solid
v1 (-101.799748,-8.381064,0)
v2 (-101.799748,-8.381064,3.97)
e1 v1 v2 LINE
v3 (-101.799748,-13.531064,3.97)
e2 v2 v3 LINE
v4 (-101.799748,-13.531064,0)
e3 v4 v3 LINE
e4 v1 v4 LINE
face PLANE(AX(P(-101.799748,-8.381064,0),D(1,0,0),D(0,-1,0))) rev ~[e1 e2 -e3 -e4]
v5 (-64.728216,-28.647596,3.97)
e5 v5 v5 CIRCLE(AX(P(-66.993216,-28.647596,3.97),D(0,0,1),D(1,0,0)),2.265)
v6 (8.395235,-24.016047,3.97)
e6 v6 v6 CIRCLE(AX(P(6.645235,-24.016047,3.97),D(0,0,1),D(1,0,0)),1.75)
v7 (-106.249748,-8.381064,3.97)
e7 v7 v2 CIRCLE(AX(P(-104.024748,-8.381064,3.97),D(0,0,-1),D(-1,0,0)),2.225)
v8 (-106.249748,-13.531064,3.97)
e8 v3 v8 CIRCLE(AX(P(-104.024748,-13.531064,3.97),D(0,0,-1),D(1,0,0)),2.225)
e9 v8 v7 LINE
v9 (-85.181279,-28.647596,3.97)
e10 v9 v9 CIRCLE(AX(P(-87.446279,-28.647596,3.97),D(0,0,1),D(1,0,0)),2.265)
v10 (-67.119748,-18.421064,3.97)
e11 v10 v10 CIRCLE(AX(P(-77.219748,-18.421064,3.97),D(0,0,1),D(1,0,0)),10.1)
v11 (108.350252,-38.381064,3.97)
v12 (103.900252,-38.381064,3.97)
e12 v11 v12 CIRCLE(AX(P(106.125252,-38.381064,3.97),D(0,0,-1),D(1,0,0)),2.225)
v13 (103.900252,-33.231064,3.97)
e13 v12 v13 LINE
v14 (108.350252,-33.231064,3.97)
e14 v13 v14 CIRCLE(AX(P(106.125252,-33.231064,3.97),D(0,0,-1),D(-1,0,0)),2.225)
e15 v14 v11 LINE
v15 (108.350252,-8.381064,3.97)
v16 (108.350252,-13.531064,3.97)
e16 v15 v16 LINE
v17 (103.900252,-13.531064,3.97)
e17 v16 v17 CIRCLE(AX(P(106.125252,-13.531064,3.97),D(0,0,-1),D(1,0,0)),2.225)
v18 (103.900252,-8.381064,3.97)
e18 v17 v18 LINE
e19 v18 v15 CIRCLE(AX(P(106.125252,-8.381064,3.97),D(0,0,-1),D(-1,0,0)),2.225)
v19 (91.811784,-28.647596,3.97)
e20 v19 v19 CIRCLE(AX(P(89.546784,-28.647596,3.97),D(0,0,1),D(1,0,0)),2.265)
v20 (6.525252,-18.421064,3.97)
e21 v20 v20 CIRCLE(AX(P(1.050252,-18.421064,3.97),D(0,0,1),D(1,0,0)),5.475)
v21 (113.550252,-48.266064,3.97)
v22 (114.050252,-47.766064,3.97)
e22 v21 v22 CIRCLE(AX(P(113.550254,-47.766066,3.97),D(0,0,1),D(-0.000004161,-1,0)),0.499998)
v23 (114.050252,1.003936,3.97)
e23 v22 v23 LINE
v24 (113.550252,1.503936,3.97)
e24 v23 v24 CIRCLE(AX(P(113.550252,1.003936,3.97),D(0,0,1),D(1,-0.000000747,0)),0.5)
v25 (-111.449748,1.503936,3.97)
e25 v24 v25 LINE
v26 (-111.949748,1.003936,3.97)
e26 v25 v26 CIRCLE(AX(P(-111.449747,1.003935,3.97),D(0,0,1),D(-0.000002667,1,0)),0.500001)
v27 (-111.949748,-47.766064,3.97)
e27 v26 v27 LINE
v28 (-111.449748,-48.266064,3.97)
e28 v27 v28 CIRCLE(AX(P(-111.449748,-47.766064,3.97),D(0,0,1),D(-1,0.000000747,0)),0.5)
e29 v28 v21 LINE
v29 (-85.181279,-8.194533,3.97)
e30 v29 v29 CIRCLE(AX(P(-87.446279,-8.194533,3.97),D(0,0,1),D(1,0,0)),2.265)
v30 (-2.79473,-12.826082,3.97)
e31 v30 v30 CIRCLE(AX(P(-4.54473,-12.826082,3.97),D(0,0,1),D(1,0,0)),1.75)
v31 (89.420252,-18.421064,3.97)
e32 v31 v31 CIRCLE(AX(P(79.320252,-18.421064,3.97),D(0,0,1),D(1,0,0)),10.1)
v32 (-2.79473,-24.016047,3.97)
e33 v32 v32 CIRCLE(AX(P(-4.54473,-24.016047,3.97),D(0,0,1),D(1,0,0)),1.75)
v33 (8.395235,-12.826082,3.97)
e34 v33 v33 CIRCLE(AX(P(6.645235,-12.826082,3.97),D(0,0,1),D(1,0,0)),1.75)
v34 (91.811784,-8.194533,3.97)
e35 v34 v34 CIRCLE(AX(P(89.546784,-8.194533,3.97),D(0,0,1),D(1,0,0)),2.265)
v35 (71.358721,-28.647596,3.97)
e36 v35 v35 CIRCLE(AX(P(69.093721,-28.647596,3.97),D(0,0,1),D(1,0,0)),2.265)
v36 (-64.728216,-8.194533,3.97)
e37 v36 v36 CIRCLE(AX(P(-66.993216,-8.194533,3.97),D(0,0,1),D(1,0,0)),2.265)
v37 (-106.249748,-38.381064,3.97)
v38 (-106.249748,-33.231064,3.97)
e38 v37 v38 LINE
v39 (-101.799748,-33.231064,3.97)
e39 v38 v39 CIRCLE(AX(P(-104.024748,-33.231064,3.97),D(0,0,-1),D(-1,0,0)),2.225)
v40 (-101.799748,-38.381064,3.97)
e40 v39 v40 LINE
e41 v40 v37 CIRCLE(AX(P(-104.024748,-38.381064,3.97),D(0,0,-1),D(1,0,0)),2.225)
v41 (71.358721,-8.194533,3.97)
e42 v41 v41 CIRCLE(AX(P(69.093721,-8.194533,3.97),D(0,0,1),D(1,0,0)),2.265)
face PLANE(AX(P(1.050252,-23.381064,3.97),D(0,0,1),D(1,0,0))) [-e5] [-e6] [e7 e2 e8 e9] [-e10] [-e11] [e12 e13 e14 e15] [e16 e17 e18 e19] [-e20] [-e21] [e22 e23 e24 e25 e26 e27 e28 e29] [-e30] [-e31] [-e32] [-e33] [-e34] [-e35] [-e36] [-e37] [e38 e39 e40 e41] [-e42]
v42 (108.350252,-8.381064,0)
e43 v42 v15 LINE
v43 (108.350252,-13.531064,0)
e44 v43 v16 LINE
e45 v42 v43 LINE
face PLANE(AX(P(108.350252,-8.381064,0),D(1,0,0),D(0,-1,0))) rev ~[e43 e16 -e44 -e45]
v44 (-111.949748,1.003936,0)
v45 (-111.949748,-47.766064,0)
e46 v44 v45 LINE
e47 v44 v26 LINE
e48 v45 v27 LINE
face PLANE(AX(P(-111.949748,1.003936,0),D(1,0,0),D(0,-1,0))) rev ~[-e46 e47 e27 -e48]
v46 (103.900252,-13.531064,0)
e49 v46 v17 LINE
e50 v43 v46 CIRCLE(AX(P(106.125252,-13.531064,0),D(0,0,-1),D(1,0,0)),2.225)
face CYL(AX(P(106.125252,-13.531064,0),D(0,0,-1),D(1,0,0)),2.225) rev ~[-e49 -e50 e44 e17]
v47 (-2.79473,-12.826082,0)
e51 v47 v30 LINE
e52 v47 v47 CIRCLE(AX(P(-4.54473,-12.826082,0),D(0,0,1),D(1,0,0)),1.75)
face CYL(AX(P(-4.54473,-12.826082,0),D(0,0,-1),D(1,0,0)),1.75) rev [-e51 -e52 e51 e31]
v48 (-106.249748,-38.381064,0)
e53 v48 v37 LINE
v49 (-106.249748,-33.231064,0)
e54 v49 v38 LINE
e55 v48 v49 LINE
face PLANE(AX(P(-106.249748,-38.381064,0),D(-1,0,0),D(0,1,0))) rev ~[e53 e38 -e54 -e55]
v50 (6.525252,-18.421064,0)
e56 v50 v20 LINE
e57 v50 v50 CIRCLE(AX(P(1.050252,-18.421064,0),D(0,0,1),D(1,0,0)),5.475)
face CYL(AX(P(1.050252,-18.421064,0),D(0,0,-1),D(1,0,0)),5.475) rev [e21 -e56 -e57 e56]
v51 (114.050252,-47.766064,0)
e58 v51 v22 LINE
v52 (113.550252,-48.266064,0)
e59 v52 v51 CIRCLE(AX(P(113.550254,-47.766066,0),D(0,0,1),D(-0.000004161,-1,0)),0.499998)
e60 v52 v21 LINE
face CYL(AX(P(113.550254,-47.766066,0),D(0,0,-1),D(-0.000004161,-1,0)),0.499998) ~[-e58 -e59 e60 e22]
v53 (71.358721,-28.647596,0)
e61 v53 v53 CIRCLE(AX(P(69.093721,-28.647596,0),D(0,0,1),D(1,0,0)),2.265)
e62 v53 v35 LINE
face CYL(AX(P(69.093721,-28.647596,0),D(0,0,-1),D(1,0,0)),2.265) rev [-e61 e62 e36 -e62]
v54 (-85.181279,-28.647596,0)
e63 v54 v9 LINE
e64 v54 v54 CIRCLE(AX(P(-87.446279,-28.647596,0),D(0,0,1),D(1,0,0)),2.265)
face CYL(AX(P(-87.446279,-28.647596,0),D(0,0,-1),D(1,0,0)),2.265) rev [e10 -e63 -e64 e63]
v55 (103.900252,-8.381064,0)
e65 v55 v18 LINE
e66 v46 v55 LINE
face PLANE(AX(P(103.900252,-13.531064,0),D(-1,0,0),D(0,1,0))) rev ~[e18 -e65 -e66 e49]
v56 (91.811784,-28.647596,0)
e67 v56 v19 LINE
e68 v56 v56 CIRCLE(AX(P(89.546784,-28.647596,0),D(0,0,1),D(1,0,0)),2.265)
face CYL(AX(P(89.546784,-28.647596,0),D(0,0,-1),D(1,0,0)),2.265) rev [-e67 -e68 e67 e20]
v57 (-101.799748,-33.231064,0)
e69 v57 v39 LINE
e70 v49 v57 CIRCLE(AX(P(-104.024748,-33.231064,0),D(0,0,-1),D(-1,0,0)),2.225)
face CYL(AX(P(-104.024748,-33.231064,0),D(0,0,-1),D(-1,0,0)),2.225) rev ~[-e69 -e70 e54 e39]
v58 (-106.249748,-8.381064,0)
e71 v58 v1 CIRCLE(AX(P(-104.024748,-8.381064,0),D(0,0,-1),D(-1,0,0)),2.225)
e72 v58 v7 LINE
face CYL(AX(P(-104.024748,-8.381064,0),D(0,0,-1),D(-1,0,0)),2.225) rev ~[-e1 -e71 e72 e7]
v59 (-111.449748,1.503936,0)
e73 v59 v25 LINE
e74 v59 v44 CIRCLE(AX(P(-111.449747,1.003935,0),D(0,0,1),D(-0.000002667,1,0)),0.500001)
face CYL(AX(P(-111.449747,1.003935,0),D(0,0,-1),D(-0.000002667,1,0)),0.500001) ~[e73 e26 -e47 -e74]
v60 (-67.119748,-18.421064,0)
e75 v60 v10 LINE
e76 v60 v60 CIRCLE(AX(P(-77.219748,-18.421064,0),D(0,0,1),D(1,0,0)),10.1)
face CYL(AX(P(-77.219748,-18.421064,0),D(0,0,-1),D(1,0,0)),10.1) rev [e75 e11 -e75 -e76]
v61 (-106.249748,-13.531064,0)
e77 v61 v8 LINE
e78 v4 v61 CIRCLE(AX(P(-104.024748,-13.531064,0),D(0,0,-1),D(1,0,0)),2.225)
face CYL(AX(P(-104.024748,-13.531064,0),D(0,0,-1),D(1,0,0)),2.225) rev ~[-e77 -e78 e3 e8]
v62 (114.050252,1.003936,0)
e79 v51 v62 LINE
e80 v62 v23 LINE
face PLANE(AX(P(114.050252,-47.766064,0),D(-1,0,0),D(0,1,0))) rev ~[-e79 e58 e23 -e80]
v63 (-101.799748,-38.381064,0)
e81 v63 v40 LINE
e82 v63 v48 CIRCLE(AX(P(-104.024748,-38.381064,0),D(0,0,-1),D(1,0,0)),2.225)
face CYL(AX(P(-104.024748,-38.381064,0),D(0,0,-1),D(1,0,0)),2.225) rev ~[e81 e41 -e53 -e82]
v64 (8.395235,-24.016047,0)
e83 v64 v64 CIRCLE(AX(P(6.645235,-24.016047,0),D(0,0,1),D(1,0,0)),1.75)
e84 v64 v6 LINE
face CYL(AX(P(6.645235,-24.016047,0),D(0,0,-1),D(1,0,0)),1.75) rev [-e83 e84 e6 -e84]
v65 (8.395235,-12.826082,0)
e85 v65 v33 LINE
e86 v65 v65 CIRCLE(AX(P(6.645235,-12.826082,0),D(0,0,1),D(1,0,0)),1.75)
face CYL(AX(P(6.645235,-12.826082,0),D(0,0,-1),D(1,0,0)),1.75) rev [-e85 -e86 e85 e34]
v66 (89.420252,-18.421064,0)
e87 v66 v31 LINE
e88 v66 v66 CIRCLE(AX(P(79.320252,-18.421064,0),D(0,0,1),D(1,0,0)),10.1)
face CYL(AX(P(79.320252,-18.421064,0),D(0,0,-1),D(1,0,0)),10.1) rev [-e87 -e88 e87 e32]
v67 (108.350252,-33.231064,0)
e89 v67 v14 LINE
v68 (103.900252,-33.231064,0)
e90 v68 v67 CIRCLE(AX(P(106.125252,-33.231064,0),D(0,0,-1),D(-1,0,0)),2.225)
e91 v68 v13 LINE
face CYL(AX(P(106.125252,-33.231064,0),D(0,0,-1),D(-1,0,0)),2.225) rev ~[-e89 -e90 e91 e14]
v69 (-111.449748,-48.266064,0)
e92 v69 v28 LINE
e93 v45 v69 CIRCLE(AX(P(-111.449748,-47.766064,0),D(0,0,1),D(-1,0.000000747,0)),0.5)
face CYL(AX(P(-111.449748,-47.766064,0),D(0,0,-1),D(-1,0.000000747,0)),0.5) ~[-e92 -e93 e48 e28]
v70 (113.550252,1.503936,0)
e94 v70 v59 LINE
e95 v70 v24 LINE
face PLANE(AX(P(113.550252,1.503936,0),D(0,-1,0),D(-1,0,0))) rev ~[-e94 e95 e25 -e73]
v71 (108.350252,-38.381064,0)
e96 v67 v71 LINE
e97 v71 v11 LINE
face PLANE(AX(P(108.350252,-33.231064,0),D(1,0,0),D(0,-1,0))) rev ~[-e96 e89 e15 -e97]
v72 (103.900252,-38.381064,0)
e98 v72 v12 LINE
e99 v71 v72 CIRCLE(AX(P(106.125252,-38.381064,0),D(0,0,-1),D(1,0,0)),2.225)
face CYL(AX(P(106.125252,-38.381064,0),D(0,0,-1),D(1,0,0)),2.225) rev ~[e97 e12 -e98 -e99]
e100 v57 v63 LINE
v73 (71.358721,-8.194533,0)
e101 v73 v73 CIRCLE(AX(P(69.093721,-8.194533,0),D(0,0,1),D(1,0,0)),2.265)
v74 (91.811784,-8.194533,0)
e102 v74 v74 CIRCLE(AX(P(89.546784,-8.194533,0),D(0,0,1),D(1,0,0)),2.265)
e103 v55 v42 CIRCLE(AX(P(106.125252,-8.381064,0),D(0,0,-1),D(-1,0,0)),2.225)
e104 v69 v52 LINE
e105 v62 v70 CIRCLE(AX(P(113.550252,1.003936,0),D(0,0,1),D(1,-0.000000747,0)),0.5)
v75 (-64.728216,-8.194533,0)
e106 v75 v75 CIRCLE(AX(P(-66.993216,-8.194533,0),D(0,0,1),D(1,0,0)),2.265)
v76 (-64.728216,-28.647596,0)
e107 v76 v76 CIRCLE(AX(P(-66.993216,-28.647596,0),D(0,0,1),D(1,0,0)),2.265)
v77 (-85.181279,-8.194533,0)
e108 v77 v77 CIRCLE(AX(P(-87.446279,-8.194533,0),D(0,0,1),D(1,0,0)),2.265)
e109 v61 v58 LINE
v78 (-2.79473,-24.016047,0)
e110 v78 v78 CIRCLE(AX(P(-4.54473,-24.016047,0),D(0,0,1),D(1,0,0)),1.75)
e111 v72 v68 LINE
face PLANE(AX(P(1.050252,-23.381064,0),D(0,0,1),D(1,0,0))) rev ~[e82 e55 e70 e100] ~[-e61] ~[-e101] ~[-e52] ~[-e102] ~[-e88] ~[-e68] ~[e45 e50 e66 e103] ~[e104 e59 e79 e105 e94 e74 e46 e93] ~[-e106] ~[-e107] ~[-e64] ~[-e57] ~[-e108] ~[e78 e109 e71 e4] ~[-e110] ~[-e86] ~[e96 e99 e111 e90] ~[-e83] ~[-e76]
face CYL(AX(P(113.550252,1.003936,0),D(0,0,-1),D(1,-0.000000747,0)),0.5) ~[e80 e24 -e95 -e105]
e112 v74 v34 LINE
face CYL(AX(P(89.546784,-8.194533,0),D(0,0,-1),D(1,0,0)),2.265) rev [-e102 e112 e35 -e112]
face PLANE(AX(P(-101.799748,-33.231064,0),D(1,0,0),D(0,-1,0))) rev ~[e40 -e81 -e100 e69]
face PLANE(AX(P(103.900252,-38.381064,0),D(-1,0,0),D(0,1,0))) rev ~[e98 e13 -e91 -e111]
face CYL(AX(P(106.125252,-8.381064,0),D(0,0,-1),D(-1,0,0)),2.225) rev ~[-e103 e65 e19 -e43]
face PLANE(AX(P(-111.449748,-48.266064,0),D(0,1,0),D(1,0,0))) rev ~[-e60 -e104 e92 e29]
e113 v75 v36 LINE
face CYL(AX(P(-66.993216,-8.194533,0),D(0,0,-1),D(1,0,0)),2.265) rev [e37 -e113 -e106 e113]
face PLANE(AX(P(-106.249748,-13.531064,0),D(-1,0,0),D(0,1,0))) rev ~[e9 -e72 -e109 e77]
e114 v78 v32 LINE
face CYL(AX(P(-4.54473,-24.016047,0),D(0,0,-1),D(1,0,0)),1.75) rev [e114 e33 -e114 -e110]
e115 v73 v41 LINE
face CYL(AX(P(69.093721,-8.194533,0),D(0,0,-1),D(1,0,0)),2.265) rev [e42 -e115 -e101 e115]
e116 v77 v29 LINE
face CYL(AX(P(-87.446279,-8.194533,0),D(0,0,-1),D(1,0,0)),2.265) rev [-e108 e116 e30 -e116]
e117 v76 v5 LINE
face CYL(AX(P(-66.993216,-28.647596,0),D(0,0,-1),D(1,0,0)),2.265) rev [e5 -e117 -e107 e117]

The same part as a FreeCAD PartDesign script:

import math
import FreeCAD as App
import Part
import Sketcher

doc = App.newDocument("Part")
params = doc.addObject("Spreadsheet::Sheet", "Params")
for row, (alias, value) in enumerate([
    ("sketch1_diameter", "3.5 mm"),
    ("sketch1_diameter2", "20.2 mm"),
    ("sketch1_radius", "0.500001 mm"),
    ("sketch1_diameter3", "4.53 mm"),
    ("sketch1_diameter4", "10.95 mm"),
    ("pad1_length", "3.97 mm"),
], start=1):
    params.set(f"A{row}", alias)
    params.set(f"B{row}", "=" + value)
    params.setAlias(f"B{row}", alias)

body = doc.addObject("PartDesign::Body", "Body")

# Sketch on XY plane
sketch1 = body.newObject("Sketcher::SketchObject", "Sketch")
sketch1.AttachmentSupport = (doc.getObject("XY_Plane"), [""])
sketch1.MapMode = "FlatFace"
sketch1.addGeometry([
    Part.LineSegment(App.Vector(113.550252, 1.503936, 0), App.Vector(-111.449748, 1.503936, 0)),  # 0
    Part.ArcOfCircle(Part.Circle(App.Vector(-111.449747, 1.003935, 0), App.Vector(0, 0, 1), 0.500001), math.radians(90.000153), math.radians(179.999847)),  # 1
    Part.LineSegment(App.Vector(-111.949748, 1.003936, 0), App.Vector(-111.949748, -47.766064, 0)),  # 2
    Part.ArcOfCircle(Part.Circle(App.Vector(-111.449748, -47.766064, 0), App.Vector(0, 0, 1), 0.5), math.radians(179.999957), math.radians(270.000043)),  # 3
    Part.LineSegment(App.Vector(-111.449748, -48.266064, 0), App.Vector(113.550252, -48.266064, 0)),  # 4
    Part.ArcOfCircle(Part.Circle(App.Vector(113.550254, -47.766066, 0), App.Vector(0, 0, 1), 0.499998), math.radians(-90.000238), math.radians(0.000238)),  # 5
    Part.LineSegment(App.Vector(114.050252, -47.766064, 0), App.Vector(114.050252, 1.003936, 0)),  # 6
    Part.ArcOfCircle(Part.Circle(App.Vector(113.550252, 1.003936, 0), App.Vector(0, 0, 1), 0.5), math.radians(-0.000043), math.radians(90.000043)),  # 7
    Part.ArcOfCircle(Part.Circle(App.Vector(-104.024748, -33.231064, 0), App.Vector(0, 0, 1), 2.225), math.radians(0), math.radians(180)),  # 8
    Part.LineSegment(App.Vector(-101.799748, -33.231064, 0), App.Vector(-101.799748, -38.381064, 0)),  # 9
    Part.ArcOfCircle(Part.Circle(App.Vector(-104.024748, -38.381064, 0), App.Vector(0, 0, 1), 2.225), math.radians(180), math.radians(360)),  # 10
    Part.LineSegment(App.Vector(-106.249748, -38.381064, 0), App.Vector(-106.249748, -33.231064, 0)),  # 11
    Part.Circle(App.Vector(-87.446279, -28.647596, 0), App.Vector(0, 0, 1), 2.265),  # 12
    Part.Circle(App.Vector(-66.993216, -28.647596, 0), App.Vector(0, 0, 1), 2.265),  # 13
    Part.Circle(App.Vector(-4.54473, -24.016047, 0), App.Vector(0, 0, 1), 1.75),  # 14
    Part.ArcOfCircle(Part.Circle(App.Vector(106.125252, -38.381064, 0), App.Vector(0, 0, 1), 2.225), math.radians(180), math.radians(360)),  # 15
    Part.LineSegment(App.Vector(103.900252, -38.381064, 0), App.Vector(103.900252, -33.231064, 0)),  # 16
    Part.ArcOfCircle(Part.Circle(App.Vector(106.125252, -33.231064, 0), App.Vector(0, 0, 1), 2.225), math.radians(0), math.radians(180)),  # 17
    Part.LineSegment(App.Vector(108.350252, -33.231064, 0), App.Vector(108.350252, -38.381064, 0)),  # 18
    Part.Circle(App.Vector(6.645235, -24.016047, 0), App.Vector(0, 0, 1), 1.75),  # 19
    Part.Circle(App.Vector(69.093721, -28.647596, 0), App.Vector(0, 0, 1), 2.265),  # 20
    Part.Circle(App.Vector(89.546784, -28.647596, 0), App.Vector(0, 0, 1), 2.265),  # 21
    Part.Circle(App.Vector(-77.219748, -18.421064, 0), App.Vector(0, 0, 1), 10.1),  # 22
    Part.ArcOfCircle(Part.Circle(App.Vector(-104.024748, -13.531064, 0), App.Vector(0, 0, 1), 2.225), math.radians(180), math.radians(360)),  # 23
    Part.LineSegment(App.Vector(-106.249748, -13.531064, 0), App.Vector(-106.249748, -8.381064, 0)),  # 24
    Part.ArcOfCircle(Part.Circle(App.Vector(-104.024748, -8.381064, 0), App.Vector(0, 0, 1), 2.225), math.radians(0), math.radians(180)),  # 25
    Part.LineSegment(App.Vector(-101.799748, -8.381064, 0), App.Vector(-101.799748, -13.531064, 0)),  # 26
    Part.Circle(App.Vector(-87.446279, -8.194533, 0), App.Vector(0, 0, 1), 2.265),  # 27
    Part.Circle(App.Vector(-66.993216, -8.194533, 0), App.Vector(0, 0, 1), 2.265),  # 28
    Part.Circle(App.Vector(-4.54473, -12.826082, 0), App.Vector(0, 0, 1), 1.75),  # 29
    Part.Circle(App.Vector(1.050252, -18.421064, 0), App.Vector(0, 0, 1), 5.475),  # 30
    Part.Circle(App.Vector(79.320252, -18.421064, 0), App.Vector(0, 0, 1), 10.1),  # 31
    Part.Circle(App.Vector(6.645235, -12.826082, 0), App.Vector(0, 0, 1), 1.75),  # 32
    Part.LineSegment(App.Vector(103.900252, -13.531064, 0), App.Vector(103.900252, -8.381064, 0)),  # 33
    Part.ArcOfCircle(Part.Circle(App.Vector(106.125252, -8.381064, 0), App.Vector(0, 0, 1), 2.225), math.radians(0), math.radians(180)),  # 34
    Part.LineSegment(App.Vector(108.350252, -8.381064, 0), App.Vector(108.350252, -13.531064, 0)),  # 35
    Part.ArcOfCircle(Part.Circle(App.Vector(106.125252, -13.531064, 0), App.Vector(0, 0, 1), 2.225), math.radians(180), math.radians(360)),  # 36
    Part.Circle(App.Vector(69.093721, -8.194533, 0), App.Vector(0, 0, 1), 2.265),  # 37
    Part.Circle(App.Vector(89.546784, -8.194533, 0), App.Vector(0, 0, 1), 2.265),  # 38
], False)
sketch1.addConstraint([
    Sketcher.Constraint("Coincident", 0, 2, 1, 1),
    Sketcher.Constraint("Coincident", 1, 2, 2, 1),
    Sketcher.Constraint("Tangent", 2, 2, 3, 1),
    Sketcher.Constraint("Tangent", 3, 2, 4, 1),
    Sketcher.Constraint("Coincident", 4, 2, 5, 1),
    Sketcher.Constraint("Coincident", 5, 2, 6, 1),
    Sketcher.Constraint("Tangent", 6, 2, 7, 1),
    Sketcher.Constraint("Tangent", 7, 2, 0, 1),
    Sketcher.Constraint("Tangent", 8, 1, 9, 1),
    Sketcher.Constraint("Tangent", 9, 2, 10, 2),
    Sketcher.Constraint("Tangent", 10, 1, 11, 1),
    Sketcher.Constraint("Tangent", 11, 2, 8, 2),
    Sketcher.Constraint("Tangent", 15, 1, 16, 1),
    Sketcher.Constraint("Tangent", 16, 2, 17, 2),
    Sketcher.Constraint("Tangent", 17, 1, 18, 1),
    Sketcher.Constraint("Tangent", 18, 2, 15, 2),
    Sketcher.Constraint("Tangent", 23, 1, 24, 1),
    Sketcher.Constraint("Tangent", 24, 2, 25, 2),
    Sketcher.Constraint("Tangent", 25, 1, 26, 1),
    Sketcher.Constraint("Tangent", 26, 2, 23, 2),
    Sketcher.Constraint("Tangent", 33, 2, 34, 2),
    Sketcher.Constraint("Tangent", 34, 1, 35, 1),
    Sketcher.Constraint("Tangent", 35, 2, 36, 2),
    Sketcher.Constraint("Tangent", 36, 1, 33, 1),
    Sketcher.Constraint("Horizontal", 0),
    Sketcher.Constraint("Vertical", 2),
    Sketcher.Constraint("Horizontal", 4),
    Sketcher.Constraint("Vertical", 6),
    Sketcher.Constraint("Vertical", 9),
    Sketcher.Constraint("Vertical", 11),
    Sketcher.Constraint("Vertical", 16),
    Sketcher.Constraint("Vertical", 18),
    Sketcher.Constraint("Vertical", 24),
    Sketcher.Constraint("Vertical", 26),
    Sketcher.Constraint("Vertical", 33),
    Sketcher.Constraint("Vertical", 35),
    Sketcher.Constraint("Equal", 1, 3),
    Sketcher.Constraint("Equal", 3, 5),
    Sketcher.Constraint("Equal", 5, 7),
    Sketcher.Constraint("Equal", 12, 13),
    Sketcher.Constraint("Equal", 10, 15),
    Sketcher.Constraint("Equal", 14, 19),
    Sketcher.Constraint("Equal", 13, 20),
    Sketcher.Constraint("Equal", 20, 21),
    Sketcher.Constraint("Equal", 17, 23),
    Sketcher.Constraint("Equal", 21, 27),
    Sketcher.Constraint("Equal", 27, 28),
    Sketcher.Constraint("Equal", 19, 29),
    Sketcher.Constraint("Equal", 22, 31),
    Sketcher.Constraint("Equal", 29, 32),
    Sketcher.Constraint("Equal", 25, 34),
    Sketcher.Constraint("Equal", 28, 37),
    Sketcher.Constraint("Equal", 37, 38),
    Sketcher.Constraint("Horizontal", 12, 3, 13, 3),
    Sketcher.Constraint("Horizontal", 10, 3, 15, 3),
    Sketcher.Constraint("Horizontal", 8, 3, 17, 3),
    Sketcher.Constraint("Horizontal", 14, 3, 19, 3),
    Sketcher.Constraint("Horizontal", 13, 3, 20, 3),
    Sketcher.Constraint("Horizontal", 20, 3, 21, 3),
    Sketcher.Constraint("Horizontal", 27, 3, 28, 3),
    Sketcher.Constraint("Horizontal", 22, 3, 30, 3),
    Sketcher.Constraint("Horizontal", 30, 3, 31, 3),
    Sketcher.Constraint("Horizontal", 29, 3, 32, 3),
    Sketcher.Constraint("Horizontal", 25, 3, 34, 3),
    Sketcher.Constraint("Horizontal", 23, 3, 36, 3),
    Sketcher.Constraint("Horizontal", 28, 3, 37, 3),
    Sketcher.Constraint("Horizontal", 37, 3, 38, 3),
    Sketcher.Constraint("Horizontal", 7, 3, 1, 2),
    Sketcher.Constraint("Horizontal", 2, 2, 5, 2),
    Sketcher.Constraint("Vertical", 10, 3, 23, 3),
    Sketcher.Constraint("Vertical", 12, 3, 27, 3),
    Sketcher.Constraint("Vertical", 13, 3, 28, 3),
    Sketcher.Constraint("Vertical", 14, 3, 29, 3),
    Sketcher.Constraint("Vertical", 19, 3, 32, 3),
    Sketcher.Constraint("Vertical", 17, 3, 34, 3),
    Sketcher.Constraint("Vertical", 20, 3, 37, 3),
    Sketcher.Constraint("Vertical", 21, 3, 38, 3),
    Sketcher.Constraint("Vertical", 3, 3, 0, 2),
    Sketcher.Constraint("Vertical", 7, 3, 4, 2),
    Sketcher.Constraint("Equal", 18, 24),
    Sketcher.Constraint("Diameter", 14, 3.5),
    Sketcher.Constraint("Diameter", 22, 20.2),
    Sketcher.Constraint("Radius", 1, 0.500001),
    Sketcher.Constraint("Diameter", 12, 4.53),
    Sketcher.Constraint("Diameter", 30, 10.95),
    Sketcher.Constraint("DistanceX", 0, 2, 0, 1, 225.0),
    Sketcher.Constraint("Radius", 8, 2.225),
    Sketcher.Constraint("DistanceY", 15, 3, 34, 3, 30.0),
    Sketcher.Constraint("DistanceY", 2, 2, 2, 1, 48.77),
    Sketcher.Constraint("DistanceY", 9, 2, 9, 1, 5.15),
    Sketcher.Constraint("DistanceX", 3, 3, 10, 1, 5.2),
    Sketcher.Constraint("DistanceX", 34, 1, 7, 3, 5.2),
    Sketcher.Constraint("DistanceY", 8, 3, 22, 3, 14.81),
    Sketcher.Constraint("DistanceX", 1, 3, 22, 3, 34.229999),
    Sketcher.Constraint("DistanceX", 31, 3, 7, 3, 34.23),
    Sketcher.Constraint("DistanceY", 3, 3, 8, 3, 14.535),
    Sketcher.Constraint("DistanceX", 3, 3, -1, 1, 111.449748),
    Sketcher.Constraint("DistanceX", 12, 3, -1, 1, 87.446279),
    Sketcher.Constraint("DistanceX", 14, 3, -1, 1, 4.54473),
    Sketcher.Constraint("DistanceX", -1, 1, 20, 3, 69.093721),
    Sketcher.Constraint("DistanceY", 8, 3, 12, 3, 4.583468),
    Sketcher.Constraint("DistanceX", 1, 3, 13, 3, 44.456531),
    Sketcher.Constraint("DistanceY", 13, 3, 14, 3, 4.631549),
    Sketcher.Constraint("DistanceX", 13, 3, 19, 3, 73.638451),
    Sketcher.Constraint("DistanceX", 21, 3, 17, 3, 16.578468),
    Sketcher.Constraint("DistanceY", 22, 3, 27, 3, 10.226531),
    Sketcher.Constraint("DistanceY", 29, 3, 28, 3, 4.631549),
    Sketcher.Constraint("DistanceX", 28, 3, 30, 3, 68.043468),
    Sketcher.Constraint("DistanceY", -1, 1, 1, 3, 1.003935),
])
sketch1.setExpression("Constraints[80]", "Params.sketch1_diameter")
sketch1.setExpression("Constraints[81]", "Params.sketch1_diameter2")
sketch1.setExpression("Constraints[82]", "Params.sketch1_radius")
sketch1.setExpression("Constraints[83]", "Params.sketch1_diameter3")
sketch1.setExpression("Constraints[84]", "Params.sketch1_diameter4")
pad1 = body.newObject("PartDesign::Pad", "Pad")
pad1.Profile = sketch1
pad1.setExpression("Length", "Params.pad1_length")

doc.recompute()
